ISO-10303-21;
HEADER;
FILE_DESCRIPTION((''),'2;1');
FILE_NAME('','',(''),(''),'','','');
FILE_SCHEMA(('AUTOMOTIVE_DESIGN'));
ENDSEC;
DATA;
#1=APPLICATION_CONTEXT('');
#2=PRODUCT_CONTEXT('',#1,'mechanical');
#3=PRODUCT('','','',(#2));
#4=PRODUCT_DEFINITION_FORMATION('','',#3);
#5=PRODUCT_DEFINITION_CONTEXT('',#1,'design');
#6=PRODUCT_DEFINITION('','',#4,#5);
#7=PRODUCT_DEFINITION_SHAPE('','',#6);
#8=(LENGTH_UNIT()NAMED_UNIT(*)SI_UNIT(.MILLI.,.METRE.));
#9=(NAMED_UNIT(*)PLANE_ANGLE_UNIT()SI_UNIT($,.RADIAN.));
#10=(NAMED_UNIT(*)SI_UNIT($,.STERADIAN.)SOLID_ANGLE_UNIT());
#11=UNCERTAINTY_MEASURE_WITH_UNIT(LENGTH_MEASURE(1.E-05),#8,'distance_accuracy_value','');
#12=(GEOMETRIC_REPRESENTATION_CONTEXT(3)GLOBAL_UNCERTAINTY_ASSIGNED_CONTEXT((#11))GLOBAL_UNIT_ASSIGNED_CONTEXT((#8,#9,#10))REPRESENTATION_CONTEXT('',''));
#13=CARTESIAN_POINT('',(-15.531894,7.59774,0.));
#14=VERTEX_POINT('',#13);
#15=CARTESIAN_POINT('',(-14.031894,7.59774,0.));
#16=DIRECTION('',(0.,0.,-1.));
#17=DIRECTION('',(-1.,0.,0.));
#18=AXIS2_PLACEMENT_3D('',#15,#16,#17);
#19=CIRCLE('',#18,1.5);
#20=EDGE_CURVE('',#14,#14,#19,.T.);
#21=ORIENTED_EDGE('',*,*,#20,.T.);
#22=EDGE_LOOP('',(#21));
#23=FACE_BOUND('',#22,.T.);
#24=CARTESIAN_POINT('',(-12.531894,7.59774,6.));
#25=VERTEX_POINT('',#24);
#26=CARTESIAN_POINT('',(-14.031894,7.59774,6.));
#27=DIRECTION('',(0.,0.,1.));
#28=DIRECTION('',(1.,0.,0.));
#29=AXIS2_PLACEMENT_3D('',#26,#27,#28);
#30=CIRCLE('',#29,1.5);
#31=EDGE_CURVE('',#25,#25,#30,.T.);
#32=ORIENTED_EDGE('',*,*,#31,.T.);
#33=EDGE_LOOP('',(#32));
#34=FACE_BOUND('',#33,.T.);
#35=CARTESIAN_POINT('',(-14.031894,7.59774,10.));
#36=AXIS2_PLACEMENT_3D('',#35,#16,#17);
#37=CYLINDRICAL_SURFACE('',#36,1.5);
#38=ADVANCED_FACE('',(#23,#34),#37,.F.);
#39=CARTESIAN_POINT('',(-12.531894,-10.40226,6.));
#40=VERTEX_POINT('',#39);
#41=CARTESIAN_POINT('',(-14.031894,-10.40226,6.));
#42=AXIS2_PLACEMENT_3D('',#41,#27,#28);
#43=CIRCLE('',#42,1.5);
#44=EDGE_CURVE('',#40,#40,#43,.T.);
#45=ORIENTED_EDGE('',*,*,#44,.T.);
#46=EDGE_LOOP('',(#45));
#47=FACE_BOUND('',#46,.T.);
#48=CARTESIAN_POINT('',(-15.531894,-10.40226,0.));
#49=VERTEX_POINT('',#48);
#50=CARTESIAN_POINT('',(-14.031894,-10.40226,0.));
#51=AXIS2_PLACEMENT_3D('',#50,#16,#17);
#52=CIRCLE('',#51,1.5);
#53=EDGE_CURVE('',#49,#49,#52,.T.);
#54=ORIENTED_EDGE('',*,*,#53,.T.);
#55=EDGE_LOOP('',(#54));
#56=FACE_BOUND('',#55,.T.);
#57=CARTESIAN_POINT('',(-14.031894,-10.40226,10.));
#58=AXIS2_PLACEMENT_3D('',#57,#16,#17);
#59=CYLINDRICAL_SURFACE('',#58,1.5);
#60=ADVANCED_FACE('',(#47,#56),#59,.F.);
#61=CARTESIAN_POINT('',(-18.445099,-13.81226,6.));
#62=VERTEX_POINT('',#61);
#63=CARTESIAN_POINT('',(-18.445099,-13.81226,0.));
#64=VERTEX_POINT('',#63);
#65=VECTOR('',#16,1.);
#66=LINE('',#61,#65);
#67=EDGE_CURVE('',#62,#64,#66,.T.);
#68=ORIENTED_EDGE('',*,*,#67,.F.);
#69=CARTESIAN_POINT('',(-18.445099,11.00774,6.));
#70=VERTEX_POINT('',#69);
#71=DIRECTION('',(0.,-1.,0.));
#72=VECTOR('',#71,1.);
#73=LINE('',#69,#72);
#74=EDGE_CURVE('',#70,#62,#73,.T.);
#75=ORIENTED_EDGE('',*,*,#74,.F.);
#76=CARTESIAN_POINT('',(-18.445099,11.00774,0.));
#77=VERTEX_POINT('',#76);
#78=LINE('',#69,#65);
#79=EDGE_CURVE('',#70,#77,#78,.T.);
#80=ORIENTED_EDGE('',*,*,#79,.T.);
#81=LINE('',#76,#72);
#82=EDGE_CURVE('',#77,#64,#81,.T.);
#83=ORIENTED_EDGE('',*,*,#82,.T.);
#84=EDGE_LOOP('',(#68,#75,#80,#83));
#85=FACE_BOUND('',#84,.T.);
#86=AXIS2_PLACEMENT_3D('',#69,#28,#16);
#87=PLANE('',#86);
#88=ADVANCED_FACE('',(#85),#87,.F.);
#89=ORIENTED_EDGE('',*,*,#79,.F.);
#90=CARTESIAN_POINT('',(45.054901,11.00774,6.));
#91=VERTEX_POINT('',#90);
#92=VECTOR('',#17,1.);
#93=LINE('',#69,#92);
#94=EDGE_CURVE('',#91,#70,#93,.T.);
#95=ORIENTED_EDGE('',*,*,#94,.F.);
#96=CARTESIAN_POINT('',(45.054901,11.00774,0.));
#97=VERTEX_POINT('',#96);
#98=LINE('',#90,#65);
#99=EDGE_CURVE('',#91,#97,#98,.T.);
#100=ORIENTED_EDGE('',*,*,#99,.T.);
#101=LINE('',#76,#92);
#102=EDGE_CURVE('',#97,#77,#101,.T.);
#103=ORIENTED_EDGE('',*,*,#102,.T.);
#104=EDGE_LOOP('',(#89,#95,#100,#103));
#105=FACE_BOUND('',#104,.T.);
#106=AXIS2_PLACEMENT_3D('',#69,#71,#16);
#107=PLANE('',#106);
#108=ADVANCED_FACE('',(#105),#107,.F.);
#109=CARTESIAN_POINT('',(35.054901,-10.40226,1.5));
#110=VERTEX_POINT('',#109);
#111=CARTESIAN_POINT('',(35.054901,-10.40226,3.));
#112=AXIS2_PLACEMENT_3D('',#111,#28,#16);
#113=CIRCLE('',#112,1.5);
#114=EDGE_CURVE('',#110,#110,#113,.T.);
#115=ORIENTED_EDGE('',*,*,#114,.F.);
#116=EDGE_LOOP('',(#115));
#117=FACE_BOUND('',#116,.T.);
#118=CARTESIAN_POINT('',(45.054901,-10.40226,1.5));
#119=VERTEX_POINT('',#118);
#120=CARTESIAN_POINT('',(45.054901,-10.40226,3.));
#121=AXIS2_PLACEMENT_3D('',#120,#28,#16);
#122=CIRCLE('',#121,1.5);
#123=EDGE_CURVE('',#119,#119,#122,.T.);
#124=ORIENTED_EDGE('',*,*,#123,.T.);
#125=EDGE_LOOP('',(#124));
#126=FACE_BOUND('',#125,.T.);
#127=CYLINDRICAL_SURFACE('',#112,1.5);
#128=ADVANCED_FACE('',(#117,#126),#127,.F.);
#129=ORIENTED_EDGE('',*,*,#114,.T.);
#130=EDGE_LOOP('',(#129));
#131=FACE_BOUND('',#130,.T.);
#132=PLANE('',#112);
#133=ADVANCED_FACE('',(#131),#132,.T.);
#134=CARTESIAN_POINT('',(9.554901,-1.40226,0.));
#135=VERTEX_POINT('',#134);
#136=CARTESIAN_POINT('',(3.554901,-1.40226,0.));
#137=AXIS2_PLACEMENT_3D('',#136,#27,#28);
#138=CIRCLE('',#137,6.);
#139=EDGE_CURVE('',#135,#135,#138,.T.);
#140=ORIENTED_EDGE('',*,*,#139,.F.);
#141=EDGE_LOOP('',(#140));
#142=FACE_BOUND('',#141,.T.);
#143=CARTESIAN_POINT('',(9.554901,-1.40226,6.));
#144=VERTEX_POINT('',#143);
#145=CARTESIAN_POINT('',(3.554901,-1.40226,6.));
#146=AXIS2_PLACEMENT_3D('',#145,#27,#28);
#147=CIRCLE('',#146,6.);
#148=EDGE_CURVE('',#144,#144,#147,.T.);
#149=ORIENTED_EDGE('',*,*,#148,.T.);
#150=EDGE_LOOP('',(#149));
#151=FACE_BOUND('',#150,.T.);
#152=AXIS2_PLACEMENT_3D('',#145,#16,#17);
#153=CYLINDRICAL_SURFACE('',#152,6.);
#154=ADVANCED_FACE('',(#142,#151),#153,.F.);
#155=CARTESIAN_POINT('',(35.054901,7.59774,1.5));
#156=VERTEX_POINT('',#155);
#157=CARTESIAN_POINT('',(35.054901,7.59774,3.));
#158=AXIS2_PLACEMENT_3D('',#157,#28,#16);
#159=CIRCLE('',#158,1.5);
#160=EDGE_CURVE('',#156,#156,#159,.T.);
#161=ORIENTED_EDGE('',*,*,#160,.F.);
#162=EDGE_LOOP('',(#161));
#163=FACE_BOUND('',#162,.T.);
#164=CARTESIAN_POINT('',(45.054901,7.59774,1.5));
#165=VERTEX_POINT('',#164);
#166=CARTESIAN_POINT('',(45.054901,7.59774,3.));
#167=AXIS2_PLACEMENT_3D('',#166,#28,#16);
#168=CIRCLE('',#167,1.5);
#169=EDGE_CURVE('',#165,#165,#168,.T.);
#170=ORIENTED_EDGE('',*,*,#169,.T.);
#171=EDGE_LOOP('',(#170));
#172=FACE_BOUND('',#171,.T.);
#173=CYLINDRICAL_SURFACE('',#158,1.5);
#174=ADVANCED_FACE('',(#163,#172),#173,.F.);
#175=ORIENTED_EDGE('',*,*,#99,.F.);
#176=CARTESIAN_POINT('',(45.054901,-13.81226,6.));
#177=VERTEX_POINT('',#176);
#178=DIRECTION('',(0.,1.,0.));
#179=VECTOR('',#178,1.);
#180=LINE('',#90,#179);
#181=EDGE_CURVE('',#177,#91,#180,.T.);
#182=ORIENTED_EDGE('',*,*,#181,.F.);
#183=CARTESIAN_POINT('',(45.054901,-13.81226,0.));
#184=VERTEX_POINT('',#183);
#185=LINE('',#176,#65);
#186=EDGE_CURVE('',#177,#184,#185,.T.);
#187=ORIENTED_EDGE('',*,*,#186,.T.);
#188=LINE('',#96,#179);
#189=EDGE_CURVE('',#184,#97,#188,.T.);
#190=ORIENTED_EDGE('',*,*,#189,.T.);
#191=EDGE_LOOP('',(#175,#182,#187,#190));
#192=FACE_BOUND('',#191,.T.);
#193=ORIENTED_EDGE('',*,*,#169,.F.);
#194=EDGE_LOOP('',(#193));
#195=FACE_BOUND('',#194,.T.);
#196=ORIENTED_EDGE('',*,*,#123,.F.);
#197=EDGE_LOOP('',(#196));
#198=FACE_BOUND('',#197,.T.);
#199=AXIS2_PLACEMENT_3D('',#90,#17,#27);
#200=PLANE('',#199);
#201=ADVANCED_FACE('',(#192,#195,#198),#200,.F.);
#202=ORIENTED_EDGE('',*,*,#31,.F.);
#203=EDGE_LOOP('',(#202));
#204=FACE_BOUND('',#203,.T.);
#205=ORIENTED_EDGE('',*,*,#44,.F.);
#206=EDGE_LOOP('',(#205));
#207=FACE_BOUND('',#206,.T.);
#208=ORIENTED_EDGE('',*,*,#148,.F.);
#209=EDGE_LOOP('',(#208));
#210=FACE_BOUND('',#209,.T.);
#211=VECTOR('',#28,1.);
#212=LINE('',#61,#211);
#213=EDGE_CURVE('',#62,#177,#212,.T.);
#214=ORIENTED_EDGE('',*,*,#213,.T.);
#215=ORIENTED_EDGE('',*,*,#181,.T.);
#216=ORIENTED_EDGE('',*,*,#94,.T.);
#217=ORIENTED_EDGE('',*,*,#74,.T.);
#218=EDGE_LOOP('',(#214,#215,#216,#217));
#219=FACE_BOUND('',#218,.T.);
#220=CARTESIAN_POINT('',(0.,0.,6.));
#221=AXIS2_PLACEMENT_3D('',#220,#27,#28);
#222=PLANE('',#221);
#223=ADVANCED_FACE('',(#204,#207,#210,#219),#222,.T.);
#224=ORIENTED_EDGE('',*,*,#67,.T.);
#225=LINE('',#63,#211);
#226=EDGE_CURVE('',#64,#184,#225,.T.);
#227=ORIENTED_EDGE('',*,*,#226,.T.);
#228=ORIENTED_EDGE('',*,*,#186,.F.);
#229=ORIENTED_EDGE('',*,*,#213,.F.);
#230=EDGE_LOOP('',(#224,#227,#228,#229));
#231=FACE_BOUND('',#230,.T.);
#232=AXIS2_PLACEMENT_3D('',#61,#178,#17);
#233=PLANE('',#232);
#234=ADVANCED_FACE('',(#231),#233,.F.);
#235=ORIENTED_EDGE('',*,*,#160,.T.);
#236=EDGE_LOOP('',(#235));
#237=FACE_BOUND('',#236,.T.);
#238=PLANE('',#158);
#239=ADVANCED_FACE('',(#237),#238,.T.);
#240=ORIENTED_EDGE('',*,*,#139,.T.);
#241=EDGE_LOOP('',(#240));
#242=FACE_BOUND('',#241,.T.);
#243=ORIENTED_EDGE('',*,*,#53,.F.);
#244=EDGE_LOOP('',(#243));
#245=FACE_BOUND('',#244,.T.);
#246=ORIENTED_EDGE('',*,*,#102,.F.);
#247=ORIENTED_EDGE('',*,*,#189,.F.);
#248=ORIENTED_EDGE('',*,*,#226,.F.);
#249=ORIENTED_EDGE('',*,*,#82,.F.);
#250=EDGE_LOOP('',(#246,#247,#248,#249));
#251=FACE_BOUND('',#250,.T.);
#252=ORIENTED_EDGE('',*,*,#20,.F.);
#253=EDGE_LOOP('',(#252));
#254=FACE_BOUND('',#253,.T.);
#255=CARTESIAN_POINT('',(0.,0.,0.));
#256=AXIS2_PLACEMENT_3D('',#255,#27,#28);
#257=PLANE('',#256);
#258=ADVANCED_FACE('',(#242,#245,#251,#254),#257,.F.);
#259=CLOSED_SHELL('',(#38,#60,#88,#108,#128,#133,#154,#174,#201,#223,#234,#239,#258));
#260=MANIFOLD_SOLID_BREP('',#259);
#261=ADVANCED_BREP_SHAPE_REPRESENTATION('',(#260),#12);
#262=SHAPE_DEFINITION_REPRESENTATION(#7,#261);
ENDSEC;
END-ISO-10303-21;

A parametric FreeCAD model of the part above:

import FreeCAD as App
import Part
import Sketcher
from FreeCAD import Vector


def add_polygon(sketch, points):
    """Adds a closed chain of lines whose ends are joined by coincident constraints."""
    first, n = sketch.GeometryCount, len(points)
    for a, b in zip(points, points[1:] + points[:1]):
        sketch.addGeometry(Part.LineSegment(App.Vector(*a, 0), App.Vector(*b, 0)), False)
    for i in range(n):
        sketch.addConstraint(Sketcher.Constraint("Coincident", first + i, 2, first + (i + 1) % n, 1))

doc = App.newDocument("Part")
body = doc.addObject("PartDesign::Body", "Body")

# Sketch on XY plane
sketch1 = doc.addObject("Sketcher::SketchObject", "Sketch")
body.addObject(sketch1)
sketch1.AttachmentSupport = (doc.XY_Plane, [""])
sketch1.MapMode = "FlatFace"
add_polygon(sketch1, [(-18, 11), (-18, -14), (45, -14), (45, 11)])  # lines 0-3
sketch1.addGeometry(Part.Circle(Vector(4, -1, 0), Vector(0, 0, 1), 6), False)  # 4
sketch1.addConstraint(Sketcher.Constraint("Vertical", 0))
sketch1.addConstraint(Sketcher.Constraint("Horizontal", 1))
sketch1.addConstraint(Sketcher.Constraint("Vertical", 2))
sketch1.addConstraint(Sketcher.Constraint("Horizontal", 3))
sketch1.addConstraint(Sketcher.Constraint("Diameter", 4, 12.0))
sketch1.addConstraint(Sketcher.Constraint("DistanceX", 1, 1, 1, 2, 63.5))
sketch1.addConstraint(Sketcher.Constraint("DistanceX", 0, 2, 4, 3, 22.0))
sketch1.addConstraint(Sketcher.Constraint("DistanceY", 0, 2, 0, 1, 24.82))
sketch1.addConstraint(Sketcher.Constraint("DistanceY", 0, 2, 4, 3, 12.41))
sketch1.addConstraint(Sketcher.Constraint("DistanceX", -1, 1, 4, 3, 3.554901))
sketch1.addConstraint(Sketcher.Constraint("DistanceY", 4, 3, -1, 1, 1.40226))
pad1 = doc.addObject("PartDesign::Pad", "Pad")
body.addObject(pad1)
pad1.Profile = sketch1
pad1.Length = 6

# Sketch on YZ plane
sketch2 = doc.addObject("Sketcher::SketchObject", "Sketch001")
body.addObject(sketch2)
sketch2.AttachmentSupport = (doc.YZ_Plane, [""])
sketch2.MapMode = "FlatFace"
sketch2.AttachmentOffset = App.Placement(Vector(0, 0, 45.054901), App.Rotation())
sketch2.addGeometry(Part.Circle(Vector(7.6, 3, 0), Vector(0, 0, 1), 1.5), False)
sketch2.addGeometry(Part.Circle(Vector(-10.4, 3, 0), Vector(0, 0, 1), 1.5), False)
sketch2.addConstraint(Sketcher.Constraint("Equal", 0, 1))
sketch2.addConstraint(Sketcher.Constraint("Horizontal", 0, 3, 1, 3))
sketch2.addConstraint(Sketcher.Constraint("Diameter", 0, 3.0))
sketch2.addConstraint(Sketcher.Constraint("DistanceY", -1, 1, 0, 3, 3.0))
sketch2.addConstraint(Sketcher.Constraint("DistanceX", 1, 3, 0, 3, 18.0))
sketch2.addConstraint(Sketcher.Constraint("DistanceX", -1, 1, 0, 3, 7.59774))
pocket1 = doc.addObject("PartDesign::Pocket", "Pocket")
body.addObject(pocket1)
pocket1.Profile = sketch2
pocket1.Length = 10

# Sketch on XY plane
sketch3 = doc.addObject("Sketcher::SketchObject", "Sketch002")
body.addObject(sketch3)
sketch3.AttachmentSupport = (doc.XY_Plane, [""])
sketch3.MapMode = "FlatFace"
sketch3.addGeometry(Part.Circle(Vector(-14, 7.6, 0), Vector(0, 0, 1), 1.5), False)
sketch3.addGeometry(Part.Circle(Vector(-14, -10.4, 0), Vector(0, 0, 1), 1.5), False)
sketch3.addConstraint(Sketcher.Constraint("Equal", 0, 1))
sketch3.addConstraint(Sketcher.Constraint("Vertical", 0, 3, 1, 3))
sketch3.addConstraint(Sketcher.Constraint("Diameter", 0, 3.0))
sketch3.addConstraint(Sketcher.Constraint("DistanceY", 1, 3, 0, 3, 18.0))
sketch3.addConstraint(Sketcher.Constraint("DistanceY", -1, 1, 0, 3, 7.59774))
sketch3.addConstraint(Sketcher.Constraint("DistanceX", 0, 3, -1, 1, 14.031894))
pocket2 = doc.addObject("PartDesign::Pocket", "Pocket001")
body.addObject(pocket2)
pocket2.Profile = sketch3
pocket2.Length = 10
pocket2.Reversed = True

doc.recompute()
